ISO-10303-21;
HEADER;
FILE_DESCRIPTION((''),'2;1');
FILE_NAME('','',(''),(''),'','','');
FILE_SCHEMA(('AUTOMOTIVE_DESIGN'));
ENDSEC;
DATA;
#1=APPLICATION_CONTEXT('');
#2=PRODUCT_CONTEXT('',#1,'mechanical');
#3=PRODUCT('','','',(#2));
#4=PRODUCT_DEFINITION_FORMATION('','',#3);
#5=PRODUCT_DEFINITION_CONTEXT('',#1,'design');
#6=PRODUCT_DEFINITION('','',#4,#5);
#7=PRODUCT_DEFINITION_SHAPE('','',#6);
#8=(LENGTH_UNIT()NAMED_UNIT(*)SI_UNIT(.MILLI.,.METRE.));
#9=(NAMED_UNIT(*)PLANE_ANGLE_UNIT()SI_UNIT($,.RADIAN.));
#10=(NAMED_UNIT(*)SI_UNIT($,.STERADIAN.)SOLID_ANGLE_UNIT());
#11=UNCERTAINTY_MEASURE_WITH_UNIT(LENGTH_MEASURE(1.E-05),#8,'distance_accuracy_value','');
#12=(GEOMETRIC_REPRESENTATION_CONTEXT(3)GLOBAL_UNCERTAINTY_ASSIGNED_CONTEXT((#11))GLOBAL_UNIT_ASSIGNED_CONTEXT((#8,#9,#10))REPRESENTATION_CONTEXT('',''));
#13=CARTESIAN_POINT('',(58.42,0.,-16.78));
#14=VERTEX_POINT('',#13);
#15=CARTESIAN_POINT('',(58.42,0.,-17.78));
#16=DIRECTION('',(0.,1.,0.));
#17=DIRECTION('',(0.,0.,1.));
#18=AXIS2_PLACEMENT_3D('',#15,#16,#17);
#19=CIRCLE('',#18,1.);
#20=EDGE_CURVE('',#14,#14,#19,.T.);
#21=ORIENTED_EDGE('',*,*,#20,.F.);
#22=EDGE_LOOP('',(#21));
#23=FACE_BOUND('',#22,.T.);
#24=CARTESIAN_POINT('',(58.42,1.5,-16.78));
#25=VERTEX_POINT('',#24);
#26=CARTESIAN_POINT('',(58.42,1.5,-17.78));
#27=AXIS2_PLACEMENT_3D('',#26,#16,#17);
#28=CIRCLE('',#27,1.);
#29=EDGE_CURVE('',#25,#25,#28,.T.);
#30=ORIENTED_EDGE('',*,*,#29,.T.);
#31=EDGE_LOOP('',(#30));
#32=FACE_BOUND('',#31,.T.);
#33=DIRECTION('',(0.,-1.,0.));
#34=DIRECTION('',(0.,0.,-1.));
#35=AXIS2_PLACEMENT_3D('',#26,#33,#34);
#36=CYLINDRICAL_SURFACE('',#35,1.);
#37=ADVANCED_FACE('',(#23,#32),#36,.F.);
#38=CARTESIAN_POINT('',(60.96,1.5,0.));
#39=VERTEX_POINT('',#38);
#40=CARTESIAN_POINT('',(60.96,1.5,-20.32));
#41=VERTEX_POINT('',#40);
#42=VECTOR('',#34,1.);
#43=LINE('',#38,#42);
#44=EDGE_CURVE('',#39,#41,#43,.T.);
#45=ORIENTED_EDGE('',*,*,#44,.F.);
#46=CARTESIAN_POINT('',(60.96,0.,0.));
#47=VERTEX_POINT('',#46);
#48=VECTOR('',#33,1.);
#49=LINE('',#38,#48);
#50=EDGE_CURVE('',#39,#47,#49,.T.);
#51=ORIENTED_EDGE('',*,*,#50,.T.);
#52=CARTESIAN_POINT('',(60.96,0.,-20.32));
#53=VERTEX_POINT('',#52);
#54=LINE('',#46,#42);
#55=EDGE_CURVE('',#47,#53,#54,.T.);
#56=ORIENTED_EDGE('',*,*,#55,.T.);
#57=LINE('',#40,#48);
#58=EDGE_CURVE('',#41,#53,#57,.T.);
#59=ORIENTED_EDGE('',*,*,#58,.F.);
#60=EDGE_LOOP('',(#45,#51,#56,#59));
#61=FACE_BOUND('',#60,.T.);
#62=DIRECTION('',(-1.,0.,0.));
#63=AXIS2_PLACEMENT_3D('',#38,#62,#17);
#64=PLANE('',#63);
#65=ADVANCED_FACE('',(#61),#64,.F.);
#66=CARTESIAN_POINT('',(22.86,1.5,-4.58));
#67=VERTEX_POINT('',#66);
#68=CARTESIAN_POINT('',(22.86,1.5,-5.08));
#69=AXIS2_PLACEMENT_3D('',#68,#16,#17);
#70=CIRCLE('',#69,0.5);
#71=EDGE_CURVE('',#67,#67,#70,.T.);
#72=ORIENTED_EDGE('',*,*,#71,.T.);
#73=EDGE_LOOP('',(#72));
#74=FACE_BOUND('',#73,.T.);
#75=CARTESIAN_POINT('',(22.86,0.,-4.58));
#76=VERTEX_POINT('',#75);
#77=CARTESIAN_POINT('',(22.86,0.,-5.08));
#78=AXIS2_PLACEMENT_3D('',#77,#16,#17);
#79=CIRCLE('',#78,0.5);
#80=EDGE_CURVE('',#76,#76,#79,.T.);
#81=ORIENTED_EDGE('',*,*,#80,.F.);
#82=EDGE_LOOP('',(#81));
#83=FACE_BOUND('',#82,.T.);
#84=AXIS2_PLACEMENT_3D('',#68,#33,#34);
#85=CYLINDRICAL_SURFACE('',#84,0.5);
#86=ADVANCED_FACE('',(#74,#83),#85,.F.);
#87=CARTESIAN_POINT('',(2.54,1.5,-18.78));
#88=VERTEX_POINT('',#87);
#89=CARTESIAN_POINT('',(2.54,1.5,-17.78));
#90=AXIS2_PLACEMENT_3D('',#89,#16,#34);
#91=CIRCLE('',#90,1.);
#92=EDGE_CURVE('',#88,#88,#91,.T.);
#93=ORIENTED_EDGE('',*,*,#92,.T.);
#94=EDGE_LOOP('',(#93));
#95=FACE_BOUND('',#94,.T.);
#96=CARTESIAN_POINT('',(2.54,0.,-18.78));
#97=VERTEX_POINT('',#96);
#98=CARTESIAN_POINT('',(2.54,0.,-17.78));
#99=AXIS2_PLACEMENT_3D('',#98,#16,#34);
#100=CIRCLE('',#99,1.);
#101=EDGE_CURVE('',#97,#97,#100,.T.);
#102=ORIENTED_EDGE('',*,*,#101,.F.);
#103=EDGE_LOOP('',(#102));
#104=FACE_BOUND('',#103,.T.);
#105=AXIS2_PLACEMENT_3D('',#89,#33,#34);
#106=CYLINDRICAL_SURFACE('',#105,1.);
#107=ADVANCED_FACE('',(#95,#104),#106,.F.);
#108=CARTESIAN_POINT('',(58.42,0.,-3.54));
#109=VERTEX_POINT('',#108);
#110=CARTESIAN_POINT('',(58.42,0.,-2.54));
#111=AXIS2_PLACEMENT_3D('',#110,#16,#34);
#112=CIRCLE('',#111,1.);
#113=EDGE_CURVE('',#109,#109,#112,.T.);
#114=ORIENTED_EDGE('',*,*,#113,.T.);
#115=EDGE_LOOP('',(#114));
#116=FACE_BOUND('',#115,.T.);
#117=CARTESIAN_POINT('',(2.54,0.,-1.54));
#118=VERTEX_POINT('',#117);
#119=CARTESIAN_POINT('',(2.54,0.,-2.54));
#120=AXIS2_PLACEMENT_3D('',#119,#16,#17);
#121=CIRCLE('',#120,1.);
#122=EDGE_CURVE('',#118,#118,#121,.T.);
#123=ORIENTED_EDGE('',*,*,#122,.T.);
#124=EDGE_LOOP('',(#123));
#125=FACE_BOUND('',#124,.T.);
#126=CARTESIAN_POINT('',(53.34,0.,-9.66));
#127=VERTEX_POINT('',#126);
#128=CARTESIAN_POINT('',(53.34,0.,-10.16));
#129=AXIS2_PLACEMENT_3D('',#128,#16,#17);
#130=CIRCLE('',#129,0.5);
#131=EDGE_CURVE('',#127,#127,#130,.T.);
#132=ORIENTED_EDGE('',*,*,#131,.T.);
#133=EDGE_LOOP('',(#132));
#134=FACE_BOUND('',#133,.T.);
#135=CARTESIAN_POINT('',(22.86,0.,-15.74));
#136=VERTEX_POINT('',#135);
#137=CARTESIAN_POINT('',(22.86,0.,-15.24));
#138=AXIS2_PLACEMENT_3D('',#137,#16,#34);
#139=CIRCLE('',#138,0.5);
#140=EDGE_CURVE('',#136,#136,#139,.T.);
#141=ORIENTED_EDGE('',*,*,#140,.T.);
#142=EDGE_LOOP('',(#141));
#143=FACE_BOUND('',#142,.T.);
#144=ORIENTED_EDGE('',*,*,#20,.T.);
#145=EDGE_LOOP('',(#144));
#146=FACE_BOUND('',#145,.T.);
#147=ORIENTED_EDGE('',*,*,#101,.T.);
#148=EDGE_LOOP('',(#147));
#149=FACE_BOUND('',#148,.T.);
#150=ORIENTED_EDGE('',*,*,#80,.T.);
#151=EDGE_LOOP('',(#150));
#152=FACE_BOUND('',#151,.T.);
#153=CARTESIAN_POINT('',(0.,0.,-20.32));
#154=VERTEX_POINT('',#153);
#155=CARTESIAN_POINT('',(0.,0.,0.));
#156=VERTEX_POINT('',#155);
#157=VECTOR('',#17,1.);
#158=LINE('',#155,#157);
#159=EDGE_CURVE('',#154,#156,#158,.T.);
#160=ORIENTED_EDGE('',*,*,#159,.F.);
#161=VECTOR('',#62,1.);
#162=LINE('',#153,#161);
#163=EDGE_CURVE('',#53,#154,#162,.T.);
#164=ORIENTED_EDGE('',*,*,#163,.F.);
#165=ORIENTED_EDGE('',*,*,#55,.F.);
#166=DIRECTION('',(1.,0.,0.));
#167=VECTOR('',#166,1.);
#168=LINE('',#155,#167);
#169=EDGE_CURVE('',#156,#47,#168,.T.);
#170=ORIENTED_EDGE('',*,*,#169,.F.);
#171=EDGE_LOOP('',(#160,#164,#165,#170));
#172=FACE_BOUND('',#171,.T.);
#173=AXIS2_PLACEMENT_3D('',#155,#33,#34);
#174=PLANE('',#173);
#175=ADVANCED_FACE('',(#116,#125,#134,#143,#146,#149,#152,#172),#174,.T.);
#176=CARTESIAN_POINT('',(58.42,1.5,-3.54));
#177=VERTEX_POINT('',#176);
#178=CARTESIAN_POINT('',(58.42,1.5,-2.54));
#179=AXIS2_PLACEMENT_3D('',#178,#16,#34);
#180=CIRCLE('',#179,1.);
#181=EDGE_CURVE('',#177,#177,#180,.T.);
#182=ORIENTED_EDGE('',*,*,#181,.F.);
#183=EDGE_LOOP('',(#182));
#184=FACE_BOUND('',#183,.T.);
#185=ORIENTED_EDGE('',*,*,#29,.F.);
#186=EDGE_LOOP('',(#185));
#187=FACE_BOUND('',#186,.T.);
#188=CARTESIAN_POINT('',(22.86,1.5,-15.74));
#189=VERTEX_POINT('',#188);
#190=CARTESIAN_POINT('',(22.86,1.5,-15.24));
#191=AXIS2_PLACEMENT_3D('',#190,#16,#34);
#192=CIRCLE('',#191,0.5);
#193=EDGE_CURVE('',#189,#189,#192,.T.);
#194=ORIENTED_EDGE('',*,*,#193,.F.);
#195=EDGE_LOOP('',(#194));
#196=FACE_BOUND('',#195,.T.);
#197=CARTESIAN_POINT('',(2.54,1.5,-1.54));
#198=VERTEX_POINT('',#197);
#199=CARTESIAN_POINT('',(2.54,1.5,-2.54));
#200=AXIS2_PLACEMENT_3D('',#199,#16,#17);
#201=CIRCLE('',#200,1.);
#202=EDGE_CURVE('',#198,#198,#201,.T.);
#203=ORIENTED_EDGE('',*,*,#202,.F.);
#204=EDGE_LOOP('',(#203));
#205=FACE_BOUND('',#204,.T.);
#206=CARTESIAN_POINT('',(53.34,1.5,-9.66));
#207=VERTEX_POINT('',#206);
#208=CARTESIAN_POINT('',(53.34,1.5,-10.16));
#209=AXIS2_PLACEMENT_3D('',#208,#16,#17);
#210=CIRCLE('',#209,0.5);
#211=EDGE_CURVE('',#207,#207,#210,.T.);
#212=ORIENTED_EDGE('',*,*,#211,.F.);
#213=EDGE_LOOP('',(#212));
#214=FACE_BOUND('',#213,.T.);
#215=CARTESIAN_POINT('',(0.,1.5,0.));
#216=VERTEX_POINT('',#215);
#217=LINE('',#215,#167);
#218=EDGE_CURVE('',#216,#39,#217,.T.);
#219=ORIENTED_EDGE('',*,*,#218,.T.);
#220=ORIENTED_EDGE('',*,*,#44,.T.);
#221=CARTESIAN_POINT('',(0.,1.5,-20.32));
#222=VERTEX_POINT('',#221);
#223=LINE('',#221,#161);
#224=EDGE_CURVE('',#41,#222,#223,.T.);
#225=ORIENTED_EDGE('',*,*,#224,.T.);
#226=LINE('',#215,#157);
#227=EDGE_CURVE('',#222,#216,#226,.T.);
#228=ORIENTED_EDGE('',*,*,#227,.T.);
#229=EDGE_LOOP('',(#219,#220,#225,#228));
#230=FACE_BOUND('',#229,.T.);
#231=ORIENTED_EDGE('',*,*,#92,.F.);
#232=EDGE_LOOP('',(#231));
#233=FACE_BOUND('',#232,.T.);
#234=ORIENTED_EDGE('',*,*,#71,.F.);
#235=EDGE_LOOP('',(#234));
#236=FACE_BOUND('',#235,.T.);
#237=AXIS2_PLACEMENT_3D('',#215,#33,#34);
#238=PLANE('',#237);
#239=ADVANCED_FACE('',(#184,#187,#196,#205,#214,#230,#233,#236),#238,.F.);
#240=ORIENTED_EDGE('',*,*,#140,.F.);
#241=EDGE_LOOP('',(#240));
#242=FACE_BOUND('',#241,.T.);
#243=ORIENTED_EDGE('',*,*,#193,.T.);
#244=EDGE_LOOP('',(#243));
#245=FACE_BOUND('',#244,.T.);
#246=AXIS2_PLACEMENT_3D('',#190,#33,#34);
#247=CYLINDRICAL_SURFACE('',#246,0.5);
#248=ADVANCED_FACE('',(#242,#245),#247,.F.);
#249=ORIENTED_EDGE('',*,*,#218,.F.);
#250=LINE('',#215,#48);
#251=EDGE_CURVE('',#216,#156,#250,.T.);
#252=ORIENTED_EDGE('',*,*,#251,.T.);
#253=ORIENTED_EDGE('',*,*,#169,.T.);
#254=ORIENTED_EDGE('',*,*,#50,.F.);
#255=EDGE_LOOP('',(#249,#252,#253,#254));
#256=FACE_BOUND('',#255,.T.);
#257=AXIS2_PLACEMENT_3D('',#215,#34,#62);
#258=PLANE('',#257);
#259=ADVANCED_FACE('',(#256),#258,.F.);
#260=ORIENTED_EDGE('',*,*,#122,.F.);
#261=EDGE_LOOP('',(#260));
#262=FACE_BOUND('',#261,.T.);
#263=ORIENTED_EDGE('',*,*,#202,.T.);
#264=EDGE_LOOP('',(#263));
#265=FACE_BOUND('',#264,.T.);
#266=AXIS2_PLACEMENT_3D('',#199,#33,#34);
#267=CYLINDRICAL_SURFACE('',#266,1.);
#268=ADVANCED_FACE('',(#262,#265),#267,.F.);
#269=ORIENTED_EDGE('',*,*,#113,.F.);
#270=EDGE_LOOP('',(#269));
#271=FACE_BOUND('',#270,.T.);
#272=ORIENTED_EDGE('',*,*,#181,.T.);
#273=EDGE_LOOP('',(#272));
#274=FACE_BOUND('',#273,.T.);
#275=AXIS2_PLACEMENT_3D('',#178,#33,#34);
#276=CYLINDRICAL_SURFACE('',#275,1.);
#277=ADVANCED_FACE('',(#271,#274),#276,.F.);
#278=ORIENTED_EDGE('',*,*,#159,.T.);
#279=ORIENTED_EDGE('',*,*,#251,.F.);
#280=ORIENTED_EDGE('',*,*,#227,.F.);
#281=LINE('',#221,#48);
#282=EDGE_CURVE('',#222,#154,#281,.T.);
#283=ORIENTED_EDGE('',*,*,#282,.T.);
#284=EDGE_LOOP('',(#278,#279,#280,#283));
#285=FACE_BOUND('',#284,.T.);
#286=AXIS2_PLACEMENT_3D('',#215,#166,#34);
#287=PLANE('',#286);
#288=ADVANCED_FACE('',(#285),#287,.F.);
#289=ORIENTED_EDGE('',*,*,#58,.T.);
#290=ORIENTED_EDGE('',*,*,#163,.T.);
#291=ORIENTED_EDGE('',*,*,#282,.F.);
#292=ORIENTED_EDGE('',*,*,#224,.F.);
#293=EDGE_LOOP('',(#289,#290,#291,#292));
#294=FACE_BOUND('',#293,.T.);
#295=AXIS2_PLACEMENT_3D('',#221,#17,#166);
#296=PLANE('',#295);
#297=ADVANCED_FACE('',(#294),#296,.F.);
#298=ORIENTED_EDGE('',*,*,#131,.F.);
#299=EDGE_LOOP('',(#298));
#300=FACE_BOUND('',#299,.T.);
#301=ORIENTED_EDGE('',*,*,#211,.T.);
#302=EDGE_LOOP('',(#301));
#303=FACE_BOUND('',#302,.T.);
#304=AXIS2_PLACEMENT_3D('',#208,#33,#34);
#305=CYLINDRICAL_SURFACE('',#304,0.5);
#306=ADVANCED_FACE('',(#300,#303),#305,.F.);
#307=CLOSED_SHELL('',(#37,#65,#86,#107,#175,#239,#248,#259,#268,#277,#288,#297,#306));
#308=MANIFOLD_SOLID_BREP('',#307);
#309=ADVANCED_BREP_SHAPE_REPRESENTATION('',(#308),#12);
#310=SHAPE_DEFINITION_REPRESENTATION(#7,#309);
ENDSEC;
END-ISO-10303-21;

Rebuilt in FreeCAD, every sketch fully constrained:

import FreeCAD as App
import Part
import Sketcher
Q = App.Units.Quantity

doc = App.newDocument("Part")
params = doc.addObject("Spreadsheet::Sheet", "Params")
for row, (alias, value) in enumerate([
    ("sketch1_diameter", "2 mm"),
    ("sketch1_diameter2", "1 mm"),
    ("sketch1_width", "60.96 mm"),
    ("sketch1_height", "20.32 mm"),
    ("pad1_length", "1.5 mm"),
], start=1):
    params.set(f"A{row}", alias)
    params.set(f"B{row}", "=" + value)
    params.setAlias(f"B{row}", alias)

body = doc.addObject("PartDesign::Body", "Body")

# Sketch on XZ plane
sketch1 = body.newObject("Sketcher::SketchObject", "Sketch")
sketch1.AttachmentSupport = (doc.getObject("XZ_Plane"), [""])
sketch1.MapMode = "FlatFace"
sketch1.addGeometry([
    Part.LineSegment(App.Vector(0, -20.32, 0), App.Vector(0, 0, 0)),  # 0
    Part.LineSegment(App.Vector(0, 0, 0), App.Vector(60.96, 0, 0)),  # 1
    Part.LineSegment(App.Vector(60.96, 0, 0), App.Vector(60.96, -20.32, 0)),  # 2
    Part.LineSegment(App.Vector(60.96, -20.32, 0), App.Vector(0, -20.32, 0)),  # 3
    Part.Circle(App.Vector(2.54, -2.54, 0), App.Vector(0, 0, 1), 1),  # 4
    Part.Circle(App.Vector(22.86, -5.08, 0), App.Vector(0, 0, 1), 0.5),  # 5
    Part.Circle(App.Vector(58.42, -2.54, 0), App.Vector(0, 0, 1), 1),  # 6
    Part.Circle(App.Vector(2.54, -17.78, 0), App.Vector(0, 0, 1), 1),  # 7
    Part.Circle(App.Vector(22.86, -15.24, 0), App.Vector(0, 0, 1), 0.5),  # 8
    Part.Circle(App.Vector(53.34, -10.16, 0), App.Vector(0, 0, 1), 0.5),  # 9
    Part.Circle(App.Vector(58.42, -17.78, 0), App.Vector(0, 0, 1), 1),  # 10
], False)
sketch1.addConstraint([
    Sketcher.Constraint("Coincident", 0, 2, 1, 1),
    Sketcher.Constraint("Coincident", 1, 2, 2, 1),
    Sketcher.Constraint("Coincident", 2, 2, 3, 1),
    Sketcher.Constraint("Coincident", 3, 2, 0, 1),
    Sketcher.Constraint("Vertical", 0),
    Sketcher.Constraint("Horizontal", 1),
    Sketcher.Constraint("Vertical", 2),
    Sketcher.Constraint("Horizontal", 3),
    Sketcher.Constraint("Coincident", 0, 2, -1, 1),
    Sketcher.Constraint("Equal", 4, 6),
    Sketcher.Constraint("Equal", 6, 7),
    Sketcher.Constraint("Equal", 5, 8),
    Sketcher.Constraint("Equal", 8, 9),
    Sketcher.Constraint("Equal", 7, 10),
    Sketcher.Constraint("Horizontal", 4, 3, 6, 3),
    Sketcher.Constraint("Horizontal", 7, 3, 10, 3),
    Sketcher.Constraint("Vertical", 4, 3, 7, 3),
    Sketcher.Constraint("Vertical", 5, 3, 8, 3),
    Sketcher.Constraint("Vertical", 6, 3, 10, 3),
    Sketcher.Constraint("Diameter", 4, Q("2 mm")),
    Sketcher.Constraint("Diameter", 5, Q("1 mm")),
    Sketcher.Constraint("DistanceX", 1, 1, 1, 2, Q("60.96 mm")),
    Sketcher.Constraint("DistanceY", 0, 1, 0, 2, Q("20.32 mm")),
    Sketcher.Constraint("DistanceY", 7, 3, 5, 3, Q("12.7 mm")),
    Sketcher.Constraint("DistanceY", 8, 3, 4, 3, Q("12.7 mm")),
    Sketcher.Constraint("DistanceX", 4, 3, 9, 3, Q("50.8 mm")),
    Sketcher.Constraint("DistanceX", 5, 3, 1, 2, Q("38.1 mm")),
    Sketcher.Constraint("DistanceX", -1, 1, 4, 3, Q("2.54 mm")),
    Sketcher.Constraint("DistanceY", 4, 3, -1, 1, Q("2.54 mm")),
    Sketcher.Constraint("DistanceY", 5, 3, -1, 1, Q("5.08 mm")),
    Sketcher.Constraint("DistanceX", -1, 1, 6, 3, Q("58.42 mm")),
    Sketcher.Constraint("DistanceY", 9, 3, -1, 1, Q("10.16 mm")),
])
sketch1.setExpression("Constraints[19]", "Params.sketch1_diameter")
sketch1.setExpression("Constraints[20]", "Params.sketch1_diameter2")
sketch1.setExpression("Constraints[21]", "Params.sketch1_width")
sketch1.setExpression("Constraints[22]", "Params.sketch1_height")
pad1 = body.newObject("PartDesign::Pad", "Pad")
pad1.Profile = sketch1
pad1.setExpression("Length", "Params.pad1_length")
pad1.Reversed = True

doc.recompute()
